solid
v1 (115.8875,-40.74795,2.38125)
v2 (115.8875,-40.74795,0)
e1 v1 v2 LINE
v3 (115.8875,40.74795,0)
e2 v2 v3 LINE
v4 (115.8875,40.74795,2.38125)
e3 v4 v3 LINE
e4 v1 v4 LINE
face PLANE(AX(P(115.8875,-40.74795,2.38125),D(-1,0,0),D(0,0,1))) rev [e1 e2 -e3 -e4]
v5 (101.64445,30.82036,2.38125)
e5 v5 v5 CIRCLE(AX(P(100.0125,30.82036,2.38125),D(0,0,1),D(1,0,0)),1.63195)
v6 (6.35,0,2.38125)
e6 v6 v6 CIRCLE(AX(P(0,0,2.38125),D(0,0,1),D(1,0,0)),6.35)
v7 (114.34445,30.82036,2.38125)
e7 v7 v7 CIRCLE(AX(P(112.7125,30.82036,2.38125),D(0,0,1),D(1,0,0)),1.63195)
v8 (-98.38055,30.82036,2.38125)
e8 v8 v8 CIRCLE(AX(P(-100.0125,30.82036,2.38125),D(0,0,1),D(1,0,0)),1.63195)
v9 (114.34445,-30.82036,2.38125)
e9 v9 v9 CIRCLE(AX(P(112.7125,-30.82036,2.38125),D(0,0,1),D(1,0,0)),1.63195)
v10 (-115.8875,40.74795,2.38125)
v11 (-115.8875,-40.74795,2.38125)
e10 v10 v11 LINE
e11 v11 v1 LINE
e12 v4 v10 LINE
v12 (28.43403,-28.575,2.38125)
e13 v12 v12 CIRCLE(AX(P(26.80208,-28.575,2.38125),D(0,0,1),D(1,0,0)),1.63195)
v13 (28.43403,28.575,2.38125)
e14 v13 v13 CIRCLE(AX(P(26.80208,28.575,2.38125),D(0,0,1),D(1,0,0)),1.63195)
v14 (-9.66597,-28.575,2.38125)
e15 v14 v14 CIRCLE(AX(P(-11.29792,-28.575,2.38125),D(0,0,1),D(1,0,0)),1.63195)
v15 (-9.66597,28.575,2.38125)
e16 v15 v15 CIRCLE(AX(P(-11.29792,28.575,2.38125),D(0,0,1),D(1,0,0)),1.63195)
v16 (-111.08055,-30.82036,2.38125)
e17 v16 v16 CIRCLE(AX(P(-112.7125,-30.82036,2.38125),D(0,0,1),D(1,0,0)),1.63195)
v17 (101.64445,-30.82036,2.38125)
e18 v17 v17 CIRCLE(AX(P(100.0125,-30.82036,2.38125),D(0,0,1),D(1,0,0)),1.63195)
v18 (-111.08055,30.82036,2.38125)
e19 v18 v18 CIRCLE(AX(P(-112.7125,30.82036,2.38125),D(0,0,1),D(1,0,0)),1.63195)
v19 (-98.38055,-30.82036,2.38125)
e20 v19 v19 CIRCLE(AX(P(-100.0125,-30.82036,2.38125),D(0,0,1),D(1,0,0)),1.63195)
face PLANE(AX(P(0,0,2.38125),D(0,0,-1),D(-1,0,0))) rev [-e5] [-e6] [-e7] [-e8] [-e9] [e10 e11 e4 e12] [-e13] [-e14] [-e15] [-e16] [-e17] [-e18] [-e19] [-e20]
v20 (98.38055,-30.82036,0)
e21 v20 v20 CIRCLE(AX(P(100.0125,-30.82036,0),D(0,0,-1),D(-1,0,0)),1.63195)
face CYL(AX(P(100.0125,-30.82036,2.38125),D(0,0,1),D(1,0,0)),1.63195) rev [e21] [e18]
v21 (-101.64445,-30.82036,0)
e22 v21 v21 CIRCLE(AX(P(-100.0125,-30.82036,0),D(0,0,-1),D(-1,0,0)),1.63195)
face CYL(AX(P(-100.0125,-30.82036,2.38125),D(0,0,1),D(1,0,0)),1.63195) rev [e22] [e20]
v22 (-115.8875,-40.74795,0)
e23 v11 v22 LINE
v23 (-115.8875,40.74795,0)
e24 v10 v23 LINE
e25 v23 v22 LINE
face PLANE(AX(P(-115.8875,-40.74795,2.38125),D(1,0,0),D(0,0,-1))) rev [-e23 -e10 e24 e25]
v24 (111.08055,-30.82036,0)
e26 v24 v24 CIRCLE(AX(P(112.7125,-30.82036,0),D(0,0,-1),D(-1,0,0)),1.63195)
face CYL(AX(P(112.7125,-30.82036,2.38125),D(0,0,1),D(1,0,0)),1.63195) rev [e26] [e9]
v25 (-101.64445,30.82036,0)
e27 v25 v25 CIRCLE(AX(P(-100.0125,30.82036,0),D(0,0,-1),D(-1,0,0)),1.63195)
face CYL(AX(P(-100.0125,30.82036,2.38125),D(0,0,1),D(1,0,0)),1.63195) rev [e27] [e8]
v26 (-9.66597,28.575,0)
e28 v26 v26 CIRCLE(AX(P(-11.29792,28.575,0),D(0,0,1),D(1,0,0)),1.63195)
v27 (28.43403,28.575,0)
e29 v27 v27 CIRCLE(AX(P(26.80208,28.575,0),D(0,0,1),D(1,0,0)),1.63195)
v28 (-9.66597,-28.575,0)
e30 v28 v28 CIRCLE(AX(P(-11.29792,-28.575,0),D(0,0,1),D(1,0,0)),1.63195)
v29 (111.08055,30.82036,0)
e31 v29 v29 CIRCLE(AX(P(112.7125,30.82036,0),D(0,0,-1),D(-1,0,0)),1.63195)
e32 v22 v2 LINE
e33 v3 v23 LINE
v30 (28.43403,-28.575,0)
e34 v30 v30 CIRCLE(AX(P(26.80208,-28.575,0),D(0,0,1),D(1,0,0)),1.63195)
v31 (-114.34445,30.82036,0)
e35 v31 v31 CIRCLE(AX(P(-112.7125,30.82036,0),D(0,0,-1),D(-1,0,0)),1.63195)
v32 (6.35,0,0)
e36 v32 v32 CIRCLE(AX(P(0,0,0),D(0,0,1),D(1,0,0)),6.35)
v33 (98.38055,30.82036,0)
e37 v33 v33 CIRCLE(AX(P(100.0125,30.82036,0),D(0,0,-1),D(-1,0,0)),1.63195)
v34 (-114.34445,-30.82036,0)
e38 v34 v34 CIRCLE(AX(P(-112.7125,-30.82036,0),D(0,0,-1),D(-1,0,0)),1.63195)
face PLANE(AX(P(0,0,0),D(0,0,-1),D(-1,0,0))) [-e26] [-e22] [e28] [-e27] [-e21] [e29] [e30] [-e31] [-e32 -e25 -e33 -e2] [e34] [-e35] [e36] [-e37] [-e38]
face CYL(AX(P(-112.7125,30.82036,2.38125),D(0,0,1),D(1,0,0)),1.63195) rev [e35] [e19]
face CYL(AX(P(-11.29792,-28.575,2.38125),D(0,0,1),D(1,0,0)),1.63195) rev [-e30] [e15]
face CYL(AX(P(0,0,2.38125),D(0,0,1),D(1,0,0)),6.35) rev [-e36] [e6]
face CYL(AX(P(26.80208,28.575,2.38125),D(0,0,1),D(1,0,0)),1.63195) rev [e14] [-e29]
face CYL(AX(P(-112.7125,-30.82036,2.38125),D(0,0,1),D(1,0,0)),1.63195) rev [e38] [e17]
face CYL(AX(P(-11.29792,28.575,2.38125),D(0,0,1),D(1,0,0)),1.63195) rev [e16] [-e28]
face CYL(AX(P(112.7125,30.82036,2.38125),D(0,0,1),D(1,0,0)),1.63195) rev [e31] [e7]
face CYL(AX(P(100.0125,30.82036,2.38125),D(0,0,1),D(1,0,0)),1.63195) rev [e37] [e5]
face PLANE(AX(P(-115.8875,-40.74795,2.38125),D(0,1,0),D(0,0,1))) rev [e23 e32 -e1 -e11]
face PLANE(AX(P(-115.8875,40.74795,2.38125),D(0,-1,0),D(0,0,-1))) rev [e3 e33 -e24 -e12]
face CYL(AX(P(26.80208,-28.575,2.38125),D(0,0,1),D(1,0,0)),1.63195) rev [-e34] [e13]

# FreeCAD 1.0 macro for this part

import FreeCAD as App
import Part
import Sketcher
from FreeCAD import Vector
Q = App.Units.Quantity

doc = App.newDocument("Part")
body = doc.addObject("PartDesign::Body", "Body")

sketch1 = body.newObject("Sketcher::SketchObject", "Sketch")
sketch1.AttachmentSupport = (doc.getObject("XY_Plane"), [""])
sketch1.MapMode = "FlatFace"
sketch1.addGeometry([
    Part.LineSegment(Vector(-115.8875, 40.74795, 0), Vector(-115.8875, -40.74795, 0)),
    Part.LineSegment(Vector(-115.8875, -40.74795, 0), Vector(115.8875, -40.74795, 0)),
    Part.LineSegment(Vector(115.8875, -40.74795, 0), Vector(115.8875, 40.74795, 0)),
    Part.LineSegment(Vector(115.8875, 40.74795, 0), Vector(-115.8875, 40.74795, 0)),
], False)
sketch1.addConstraint([
    Sketcher.Constraint("Coincident", 0, 2, 1, 1),
    Sketcher.Constraint("Coincident", 1, 2, 2, 1),
    Sketcher.Constraint("Coincident", 2, 2, 3, 1),
    Sketcher.Constraint("Coincident", 3, 2, 0, 1),
    Sketcher.Constraint("Vertical", 0),
    Sketcher.Constraint("Horizontal", 1),
    Sketcher.Constraint("Vertical", 2),
    Sketcher.Constraint("Horizontal", 3),
    Sketcher.Constraint("Symmetric", 0, 2, 2, 2, -1, 1),
    Sketcher.Constraint("DistanceX", 1, 1, 1, 2, Q("9.125 in")),
    Sketcher.Constraint("DistanceY", 0, 2, 0, 1, Q("3.2085 in")),
])
pad1 = body.newObject("PartDesign::Pad", "Pad")
pad1.Profile = sketch1
pad1.Length = Q("0.09375 in")

sketch2 = body.newObject("Sketcher::SketchObject", "Sketch001")
sketch2.AttachmentSupport = (doc.getObject("XY_Plane"), [""])
sketch2.MapMode = "FlatFace"
sketch2.AttachmentOffset = App.Placement(Vector(0, 0, 0.09375 * 25.4), App.Rotation())
sketch2.addGeometry([
    Part.Circle(Vector(-11.29792, 28.575, 0), Vector(0, 0, 1), 1.63195),
    Part.Circle(Vector(26.80208, 28.575, 0), Vector(0, 0, 1), 1.63195),
], False)
sketch2.addConstraint([
    Sketcher.Constraint("Equal", 0, 1),
    Sketcher.Constraint("Horizontal", 0, 3, 1, 3),
    Sketcher.Constraint("Diameter", 0, Q("0.1285 in")),
    Sketcher.Constraint("DistanceX", 0, 3, 1, 3, Q("1.5 in")),
    Sketcher.Constraint("DistanceY", -1, 1, 0, 3, Q("1.125 in")),
    Sketcher.Constraint("DistanceX", 0, 3, -1, 1, Q("0.4448 in")),
])
doc.recompute()
hole = body.newObject("PartDesign::Hole", "Hole")
hole.Profile = sketch2
hole.ThreadType = "None"
hole.Diameter = Q("0.1285 in")
hole.DepthType = "ThroughAll"
doc.recompute()

mirrored = body.newObject("PartDesign::Mirrored", "Mirrored")
mirrored.Originals = [hole]
mirrored.MirrorPlane = (doc.getObject("XZ_Plane"), [""])
body.Tip = mirrored

sketch3 = body.newObject("Sketcher::SketchObject", "Sketch002")
sketch3.AttachmentSupport = (doc.getObject("YZ_Plane"), [""])
sketch3.MapMode = "FlatFace"
sketch3.AttachmentOffset = App.Placement(Vector(0, 0, -4.4375 * 25.4), App.Rotation())
sketch3.addGeometry([
    Part.LineSegment(Vector(30.82036, -8.124324, 0), Vector(30.82036, 2.38125, 0)),
    Part.LineSegment(Vector(30.82036, 2.38125, 0), Vector(29.18841, 2.38125, 0)),
    Part.LineSegment(Vector(29.18841, 2.38125, 0), Vector(29.18841, -7.14375, 0)),
    Part.LineSegment(Vector(29.18841, -7.14375, 0), Vector(30.82036, -8.124324, 0)),
], False)
sketch3.addGeometry(Part.LineSegment(Vector(30.82036, 2.38125, 0), Vector(30.82036, -8.124324, 0)), True)
sketch3.addConstraint([
    Sketcher.Constraint("Coincident", 0, 2, 1, 1),
    Sketcher.Constraint("Coincident", 1, 2, 2, 1),
    Sketcher.Constraint("Coincident", 2, 2, 3, 1),
    Sketcher.Constraint("Coincident", 3, 2, 0, 1),
    Sketcher.Constraint("Vertical", 0),
    Sketcher.Constraint("Horizontal", 1),
    Sketcher.Constraint("Vertical", 2),
    Sketcher.Constraint("Vertical", 4),
    Sketcher.Constraint("Coincident", 4, 1, 0, 2),
    Sketcher.Constraint("Equal", 0, 4),
    Sketcher.Constraint("Angle", 3, Q("-31 deg")),
    Sketcher.Constraint("DistanceY", 2, 2, 2, 1, Q("0.375 in")),
    Sketcher.Constraint("DistanceY", -1, 1, 0, 2, Q("0.09375 in")),
    Sketcher.Constraint("DistanceX", -1, 1, 0, 2, Q("1.2134 in")),
    Sketcher.Constraint("DistanceX", 1, 2, 1, 1, Q("1.63195 mm")),
])
groove = body.newObject("PartDesign::Groove", "Groove")
groove.Profile = sketch3
groove.ReferenceAxis = (sketch3, ["Axis0"])
groove.Angle = 360
doc.recompute()

linearpattern = body.newObject("PartDesign::LinearPattern", "LinearPattern")
linearpattern.Originals = [groove]
linearpattern.Direction = (doc.getObject("X_Axis"), [""])
linearpattern.Mode = "offset"
linearpattern.Offset = Q("0.5 in")
linearpattern.Occurrences = 2
body.Tip = linearpattern
doc.recompute()

mirrored2 = body.newObject("PartDesign::Mirrored", "Mirrored001")
mirrored2.Originals = [groove]
mirrored2.MirrorPlane = (doc.getObject("YZ_Plane"), [""])
body.Tip = mirrored2

sketch4 = body.newObject("Sketcher::SketchObject", "Sketch003")
sketch4.AttachmentSupport = (doc.getObject("YZ_Plane"), [""])
sketch4.MapMode = "FlatFace"
sketch4.AttachmentOffset = App.Placement(Vector(0, 0, 3.9375 * 25.4), App.Rotation())
sketch4.addGeometry([
    Part.LineSegment(Vector(30.82036, 2.38125, 0), Vector(30.82036, -8.124324, 0)),
    Part.LineSegment(Vector(30.82036, -8.124324, 0), Vector(29.18841, -7.14375, 0)),
    Part.LineSegment(Vector(29.18841, -7.14375, 0), Vector(29.18841, 2.38125, 0)),
    Part.LineSegment(Vector(29.18841, 2.38125, 0), Vector(30.82036, 2.38125, 0)),
], False)
sketch4.addGeometry(Part.LineSegment(Vector(30.82036, -8.124324, 0), Vector(30.82036, 2.38125, 0)), True)
sketch4.addConstraint([
    Sketcher.Constraint("Coincident", 0, 2, 1, 1),
    Sketcher.Constraint("Coincident", 1, 2, 2, 1),
    Sketcher.Constraint("Coincident", 2, 2, 3, 1),
    Sketcher.Constraint("Coincident", 3, 2, 0, 1),
    Sketcher.Constraint("Vertical", 0),
    Sketcher.Constraint("Vertical", 2),
    Sketcher.Constraint("Horizontal", 3),
    Sketcher.Constraint("Vertical", 4),
    Sketcher.Constraint("Coincident", 4, 1, 0, 2),
    Sketcher.Constraint("Horizontal", 2, 2, 4, 2),
    Sketcher.Constraint("Angle", 1, Q("149 deg")),
    Sketcher.Constraint("DistanceY", 2, 1, 2, 2, Q("0.375 in")),
    Sketcher.Constraint("DistanceY", 1, 2, -1, 1, Q("0.28125 in")),
    Sketcher.Constraint("DistanceX", -1, 1, 0, 2, Q("1.2134 in")),
    Sketcher.Constraint("DistanceX", 3, 1, 3, 2, Q("1.63195 mm")),
])
groove2 = body.newObject("PartDesign::Groove", "Groove001")
groove2.Profile = sketch4
groove2.ReferenceAxis = (sketch4, ["Axis0"])
groove2.Angle = 360
doc.recompute()

mirrored3 = body.newObject("PartDesign::Mirrored", "Mirrored002")
mirrored3.Originals = [groove]
mirrored3.MirrorPlane = (doc.getObject("XZ_Plane"), [""])
body.Tip = mirrored3

sketch5 = body.newObject("Sketcher::SketchObject", "Sketch004")
sketch5.AttachmentSupport = (doc.getObject("YZ_Plane"), [""])
sketch5.MapMode = "FlatFace"
sketch5.AttachmentOffset = App.Placement(Vector(0, 0, -3.9375 * 25.4), App.Rotation())
sketch5.addGeometry([
    Part.LineSegment(Vector(-30.82036, 2.38125, 0), Vector(-30.82036, -8.124324, 0)),
    Part.LineSegment(Vector(-30.82036, -8.124324, 0), Vector(-29.18841, -7.14375, 0)),
    Part.LineSegment(Vector(-29.18841, -7.14375, 0), Vector(-29.18841, 2.38125, 0)),
    Part.LineSegment(Vector(-29.18841, 2.38125, 0), Vector(-30.82036, 2.38125, 0)),
], False)
sketch5.addGeometry(Part.LineSegment(Vector(-30.82036, -8.124324, 0), Vector(-30.82036, 2.38125, 0)), True)
sketch5.addConstraint([
    Sketcher.Constraint("Coincident", 0, 2, 1, 1),
    Sketcher.Constraint("Coincident", 1, 2, 2, 1),
    Sketcher.Constraint("Coincident", 2, 2, 3, 1),
    Sketcher.Constraint("Coincident", 3, 2, 0, 1),
    Sketcher.Constraint("Vertical", 0),
    Sketcher.Constraint("Vertical", 2),
    Sketcher.Constraint("Horizontal", 3),
    Sketcher.Constraint("Vertical", 4),
    Sketcher.Constraint("Coincident", 4, 1, 0, 2),
    Sketcher.Constraint("Horizontal", 2, 2, 4, 2),
    Sketcher.Constraint("Angle", 1, Q("31 deg")),
    Sketcher.Constraint("DistanceY", 2, 1, 2, 2, Q("0.375 in")),
    Sketcher.Constraint("DistanceY", 1, 2, -1, 1, Q("0.28125 in")),
    Sketcher.Constraint("DistanceX", 0, 2, -1, 1, Q("1.2134 in")),
    Sketcher.Constraint("DistanceX", 3, 2, 3, 1, Q("1.63195 mm")),
])
groove3 = body.newObject("PartDesign::Groove", "Groove002")
groove3.Profile = sketch5
groove3.ReferenceAxis = (sketch5, ["Axis0"])
groove3.Angle = 360

sketch6 = body.newObject("Sketcher::SketchObject", "Sketch005")
sketch6.AttachmentSupport = (doc.getObject("YZ_Plane"), [""])
sketch6.MapMode = "FlatFace"
sketch6.AttachmentOffset = App.Placement(Vector(0, 0, 4.4375 * 25.4), App.Rotation())
sketch6.addGeometry([
    Part.LineSegment(Vector(-30.82036, -8.124324, 0), Vector(-30.82036, 2.38125, 0)),
    Part.LineSegment(Vector(-30.82036, 2.38125, 0), Vector(-29.18841, 2.38125, 0)),
    Part.LineSegment(Vector(-29.18841, 2.38125, 0), Vector(-29.18841, -7.14375, 0)),
    Part.LineSegment(Vector(-29.18841, -7.14375, 0), Vector(-30.82036, -8.124324, 0)),
], False)
sketch6.addGeometry(Part.LineSegment(Vector(-30.82036, 2.38125, 0), Vector(-30.82036, -8.124324, 0)), True)
sketch6.addConstraint([
    Sketcher.Constraint("Coincident", 0, 2, 1, 1),
    Sketcher.Constraint("Coincident", 1, 2, 2, 1),
    Sketcher.Constraint("Coincident", 2, 2, 3, 1),
    Sketcher.Constraint("Coincident", 3, 2, 0, 1),
    Sketcher.Constraint("Vertical", 0),
    Sketcher.Constraint("Horizontal", 1),
    Sketcher.Constraint("Vertical", 2),
    Sketcher.Constraint("Vertical", 4),
    Sketcher.Constraint("Coincident", 4, 1, 0, 2),
    Sketcher.Constraint("Equal", 0, 4),
    Sketcher.Constraint("Angle", 3, Q("-149 deg")),
    Sketcher.Constraint("DistanceY", 2, 2, 2, 1, Q("0.375 in")),
    Sketcher.Constraint("DistanceY", -1, 1, 0, 2, Q("0.09375 in")),
    Sketcher.Constraint("DistanceX", 0, 2, -1, 1, Q("1.2134 in")),
    Sketcher.Constraint("DistanceX", 1, 1, 1, 2, Q("1.63195 mm")),
])
groove4 = body.newObject("PartDesign::Groove", "Groove003")
groove4.Profile = sketch6
groove4.ReferenceAxis = (sketch6, ["Axis0"])
groove4.Angle = 360

sketch7 = body.newObject("Sketcher::SketchObject", "Sketch006")
sketch7.AttachmentSupport = (doc.getObject("YZ_Plane"), [""])
sketch7.MapMode = "FlatFace"
sketch7.AttachmentOffset = App.Placement(Vector(0, 0, 3.9375 * 25.4), App.Rotation())
sketch7.addGeometry([
    Part.LineSegment(Vector(-30.82036, -8.124324, 0), Vector(-30.82036, 2.38125, 0)),
    Part.LineSegment(Vector(-30.82036, 2.38125, 0), Vector(-29.18841, 2.38125, 0)),
    Part.LineSegment(Vector(-29.18841, 2.38125, 0), Vector(-29.18841, -7.14375, 0)),
    Part.LineSegment(Vector(-29.18841, -7.14375, 0), Vector(-30.82036, -8.124324, 0)),
], False)
sketch7.addGeometry(Part.LineSegment(Vector(-30.82036, 2.38125, 0), Vector(-30.82036, -8.124324, 0)), True)
sketch7.addConstraint([
    Sketcher.Constraint("Coincident", 0, 2, 1, 1),
    Sketcher.Constraint("Coincident", 1, 2, 2, 1),
    Sketcher.Constraint("Coincident", 2, 2, 3, 1),
    Sketcher.Constraint("Coincident", 3, 2, 0, 1),
    Sketcher.Constraint("Vertical", 0),
    Sketcher.Constraint("Horizontal", 1),
    Sketcher.Constraint("Vertical", 2),
    Sketcher.Constraint("Vertical", 4),
    Sketcher.Constraint("Coincident", 4, 1, 0, 2),
    Sketcher.Constraint("Equal", 0, 4),
    Sketcher.Constraint("Angle", 3, Q("-149 deg")),
    Sketcher.Constraint("DistanceY", 2, 2, 2, 1, Q("0.375 in")),
    Sketcher.Constraint("DistanceY", -1, 1, 0, 2, Q("0.09375 in")),
    Sketcher.Constraint("DistanceX", 0, 2, -1, 1, Q("1.2134 in")),
    Sketcher.Constraint("DistanceX", 1, 1, 1, 2, Q("1.63195 mm")),
])
groove5 = body.newObject("PartDesign::Groove", "Groove004")
groove5.Profile = sketch7
groove5.ReferenceAxis = (sketch7, ["Axis0"])
groove5.Angle = 360

sketch8 = body.newObject("Sketcher::SketchObject", "Sketch007")
sketch8.AttachmentSupport = (doc.getObject("XY_Plane"), [""])
sketch8.MapMode = "FlatFace"
sketch8.AttachmentOffset = App.Placement(Vector(0, 0, 0.09375 * 25.4), App.Rotation())
sketch8.addGeometry(Part.Circle(Vector(0, 0, 0), Vector(0, 0, 1), 6.35), False)
sketch8.addConstraint([
    Sketcher.Constraint("Coincident", 0, 3, -1, 1),
    Sketcher.Constraint("Diameter", 0, Q("0.5 in")),
])
doc.recompute()
hole2 = body.newObject("PartDesign::Hole", "Hole001")
hole2.Profile = sketch8
hole2.ThreadType = "None"
hole2.Diameter = Q("0.5 in")
hole2.DepthType = "ThroughAll"

doc.recompute()
